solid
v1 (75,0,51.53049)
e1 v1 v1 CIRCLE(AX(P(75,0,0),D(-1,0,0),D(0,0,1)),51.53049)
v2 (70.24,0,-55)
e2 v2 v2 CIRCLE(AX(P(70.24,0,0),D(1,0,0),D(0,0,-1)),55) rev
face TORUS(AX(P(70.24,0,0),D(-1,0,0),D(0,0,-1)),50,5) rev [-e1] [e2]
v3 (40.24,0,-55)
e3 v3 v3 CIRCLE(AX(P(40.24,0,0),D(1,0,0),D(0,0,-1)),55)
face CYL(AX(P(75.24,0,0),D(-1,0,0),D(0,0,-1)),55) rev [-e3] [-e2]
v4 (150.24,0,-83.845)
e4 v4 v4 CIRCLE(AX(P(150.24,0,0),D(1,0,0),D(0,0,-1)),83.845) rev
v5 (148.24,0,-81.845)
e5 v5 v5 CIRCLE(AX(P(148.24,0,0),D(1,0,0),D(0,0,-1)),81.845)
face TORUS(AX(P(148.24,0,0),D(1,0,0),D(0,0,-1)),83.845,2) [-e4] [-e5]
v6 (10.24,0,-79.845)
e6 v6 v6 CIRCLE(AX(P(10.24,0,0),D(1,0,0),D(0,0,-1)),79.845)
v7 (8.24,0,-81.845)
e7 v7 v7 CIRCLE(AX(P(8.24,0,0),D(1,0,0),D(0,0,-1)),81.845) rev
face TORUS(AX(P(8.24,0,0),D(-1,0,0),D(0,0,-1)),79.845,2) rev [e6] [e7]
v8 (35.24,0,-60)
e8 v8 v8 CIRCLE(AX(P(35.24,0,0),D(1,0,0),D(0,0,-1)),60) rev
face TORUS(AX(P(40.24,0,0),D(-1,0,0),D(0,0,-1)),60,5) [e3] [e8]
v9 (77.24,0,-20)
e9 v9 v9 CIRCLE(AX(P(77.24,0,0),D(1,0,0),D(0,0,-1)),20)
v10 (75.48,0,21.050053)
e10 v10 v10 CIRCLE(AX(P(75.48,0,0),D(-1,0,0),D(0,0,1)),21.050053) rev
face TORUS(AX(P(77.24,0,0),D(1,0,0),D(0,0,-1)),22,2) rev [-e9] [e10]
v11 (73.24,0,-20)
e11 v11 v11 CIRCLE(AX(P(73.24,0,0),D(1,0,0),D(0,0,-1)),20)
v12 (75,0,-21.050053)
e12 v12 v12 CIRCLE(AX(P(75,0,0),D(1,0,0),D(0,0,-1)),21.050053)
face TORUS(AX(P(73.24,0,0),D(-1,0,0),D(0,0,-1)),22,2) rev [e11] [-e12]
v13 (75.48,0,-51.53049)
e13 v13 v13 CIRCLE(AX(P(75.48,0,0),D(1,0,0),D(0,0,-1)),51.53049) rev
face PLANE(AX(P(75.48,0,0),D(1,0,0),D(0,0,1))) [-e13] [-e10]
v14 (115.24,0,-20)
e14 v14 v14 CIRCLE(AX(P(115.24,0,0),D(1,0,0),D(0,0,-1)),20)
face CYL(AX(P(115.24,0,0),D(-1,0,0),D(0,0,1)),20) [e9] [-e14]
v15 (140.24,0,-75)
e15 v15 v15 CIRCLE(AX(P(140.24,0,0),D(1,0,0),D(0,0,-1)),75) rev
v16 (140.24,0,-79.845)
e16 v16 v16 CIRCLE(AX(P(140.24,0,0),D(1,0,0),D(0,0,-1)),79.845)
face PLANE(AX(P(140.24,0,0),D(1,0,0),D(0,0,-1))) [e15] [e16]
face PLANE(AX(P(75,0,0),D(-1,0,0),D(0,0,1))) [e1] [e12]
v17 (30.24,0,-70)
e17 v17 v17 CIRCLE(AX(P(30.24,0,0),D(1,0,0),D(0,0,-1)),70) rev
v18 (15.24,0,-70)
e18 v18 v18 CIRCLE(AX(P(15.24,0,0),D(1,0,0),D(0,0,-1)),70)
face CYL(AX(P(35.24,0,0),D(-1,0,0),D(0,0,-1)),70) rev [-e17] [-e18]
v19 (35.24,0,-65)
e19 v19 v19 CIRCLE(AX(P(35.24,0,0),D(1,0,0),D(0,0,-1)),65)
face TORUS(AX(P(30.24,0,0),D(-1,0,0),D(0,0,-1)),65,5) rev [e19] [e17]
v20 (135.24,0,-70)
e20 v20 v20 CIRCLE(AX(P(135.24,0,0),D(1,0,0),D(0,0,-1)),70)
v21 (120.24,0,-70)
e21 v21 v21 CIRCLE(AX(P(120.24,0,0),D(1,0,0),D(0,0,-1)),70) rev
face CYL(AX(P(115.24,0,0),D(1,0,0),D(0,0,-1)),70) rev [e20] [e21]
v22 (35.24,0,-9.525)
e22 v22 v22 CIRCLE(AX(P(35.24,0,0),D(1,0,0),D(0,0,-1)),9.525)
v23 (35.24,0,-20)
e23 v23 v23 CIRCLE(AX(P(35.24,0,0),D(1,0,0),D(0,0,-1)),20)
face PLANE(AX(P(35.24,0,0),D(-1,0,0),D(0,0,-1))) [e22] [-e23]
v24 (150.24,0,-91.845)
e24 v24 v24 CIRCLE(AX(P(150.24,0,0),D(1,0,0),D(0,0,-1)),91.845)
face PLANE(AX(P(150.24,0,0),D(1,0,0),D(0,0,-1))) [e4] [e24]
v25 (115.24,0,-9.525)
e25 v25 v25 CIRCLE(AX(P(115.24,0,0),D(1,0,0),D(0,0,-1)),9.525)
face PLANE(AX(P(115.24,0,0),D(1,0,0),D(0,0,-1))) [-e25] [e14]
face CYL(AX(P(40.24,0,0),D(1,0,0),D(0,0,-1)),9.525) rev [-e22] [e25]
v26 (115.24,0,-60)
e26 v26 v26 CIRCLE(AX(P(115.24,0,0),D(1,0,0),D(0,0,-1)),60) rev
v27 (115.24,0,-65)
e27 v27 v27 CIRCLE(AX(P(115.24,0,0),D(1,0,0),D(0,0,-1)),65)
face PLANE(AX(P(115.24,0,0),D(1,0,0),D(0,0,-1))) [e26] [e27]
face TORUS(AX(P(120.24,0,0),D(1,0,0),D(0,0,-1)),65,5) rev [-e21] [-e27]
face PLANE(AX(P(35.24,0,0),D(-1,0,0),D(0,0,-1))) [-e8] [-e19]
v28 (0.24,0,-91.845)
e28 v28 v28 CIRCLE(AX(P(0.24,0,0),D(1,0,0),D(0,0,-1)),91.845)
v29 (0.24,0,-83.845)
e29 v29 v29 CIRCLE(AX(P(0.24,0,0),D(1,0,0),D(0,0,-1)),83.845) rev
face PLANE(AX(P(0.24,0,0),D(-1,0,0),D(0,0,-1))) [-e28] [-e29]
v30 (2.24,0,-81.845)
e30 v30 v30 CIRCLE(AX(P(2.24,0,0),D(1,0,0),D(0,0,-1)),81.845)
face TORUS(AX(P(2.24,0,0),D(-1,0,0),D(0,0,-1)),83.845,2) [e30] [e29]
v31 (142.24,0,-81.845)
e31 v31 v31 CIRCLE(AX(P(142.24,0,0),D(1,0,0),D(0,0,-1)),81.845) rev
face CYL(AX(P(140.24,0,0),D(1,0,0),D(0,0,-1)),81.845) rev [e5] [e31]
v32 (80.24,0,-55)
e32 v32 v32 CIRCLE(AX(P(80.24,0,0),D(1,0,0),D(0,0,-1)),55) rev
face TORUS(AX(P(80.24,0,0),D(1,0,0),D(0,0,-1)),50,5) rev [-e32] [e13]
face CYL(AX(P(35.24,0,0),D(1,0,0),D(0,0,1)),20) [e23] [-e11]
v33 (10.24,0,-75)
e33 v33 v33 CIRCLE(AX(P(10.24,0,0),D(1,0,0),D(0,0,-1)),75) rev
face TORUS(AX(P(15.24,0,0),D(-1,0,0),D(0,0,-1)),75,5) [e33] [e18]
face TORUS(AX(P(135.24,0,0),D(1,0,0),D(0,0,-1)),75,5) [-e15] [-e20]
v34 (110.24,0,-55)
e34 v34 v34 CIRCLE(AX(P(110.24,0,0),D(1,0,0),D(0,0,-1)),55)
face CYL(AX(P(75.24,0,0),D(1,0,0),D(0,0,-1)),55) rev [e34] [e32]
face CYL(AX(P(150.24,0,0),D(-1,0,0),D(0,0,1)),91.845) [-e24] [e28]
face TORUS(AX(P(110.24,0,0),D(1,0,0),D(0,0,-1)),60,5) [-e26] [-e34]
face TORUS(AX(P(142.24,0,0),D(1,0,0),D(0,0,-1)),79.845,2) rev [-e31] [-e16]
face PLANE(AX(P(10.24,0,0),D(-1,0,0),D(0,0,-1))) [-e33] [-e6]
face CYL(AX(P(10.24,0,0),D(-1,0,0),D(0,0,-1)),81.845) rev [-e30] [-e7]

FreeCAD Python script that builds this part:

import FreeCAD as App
import Part
import Sketcher

V = App.Vector


def edges_at(feature, points):
    """Names of the edges that pass closest to the given points."""
    edges = feature.Shape.Edges
    near = lambda p: min(range(len(edges)), key=lambda i: edges[i].distToShape(Part.Vertex(*p))[0])
    return sorted({f"Edge{near(p) + 1}" for p in points})

doc = App.newDocument("Part")
body = doc.addObject("PartDesign::Body", "Body")

# Sketch on YZ plane
sketch1 = body.newObject("Sketcher::SketchObject", "Sketch")
sketch1.AttachmentSupport = (doc.getObject("YZ_Plane"), [""])
sketch1.MapMode = "FlatFace"
sketch1.addGeometry(Part.Circle(V(0, 0, 0), V(0, 0, 1), 92), False)
sketch1.addConstraint(Sketcher.Constraint("Coincident", 0, 3, -1, 1))
sketch1.addConstraint(Sketcher.Constraint("Diameter", 0, 183.69))
pad1 = body.newObject("PartDesign::Pad", "Pad")
pad1.Profile = sketch1
pad1.Length = 150.24

# Sketch on YZ plane
sketch2 = body.newObject("Sketcher::SketchObject", "Sketch001")
sketch2.AttachmentSupport = (doc.getObject("YZ_Plane"), [""])
sketch2.MapMode = "FlatFace"
sketch2.AttachmentOffset = App.Placement(V(0, 0, 150.24), App.Rotation())
sketch2.addGeometry(Part.Circle(V(0, 0, 0), V(0, 0, 1), 82), False)
sketch2.addConstraint(Sketcher.Constraint("Coincident", 0, 3, -1, 1))
sketch2.addConstraint(Sketcher.Constraint("Diameter", 0, 163.69))
pocket1 = body.newObject("PartDesign::Pocket", "Pocket")
pocket1.Profile = sketch2
pocket1.Length = 10

# Sketch on YZ plane
sketch3 = body.newObject("Sketcher::SketchObject", "Sketch002")
sketch3.AttachmentSupport = (doc.getObject("YZ_Plane"), [""])
sketch3.MapMode = "FlatFace"
sketch3.AttachmentOffset = App.Placement(V(0, 0, 140.24), App.Rotation())
sketch3.addGeometry(Part.Circle(V(0, 0, 0), V(0, 0, 1), 70), False)
sketch3.addConstraint(Sketcher.Constraint("Coincident", 0, 3, -1, 1))
sketch3.addConstraint(Sketcher.Constraint("Diameter", 0, 140.0))
pocket2 = body.newObject("PartDesign::Pocket", "Pocket001")
pocket2.Profile = sketch3
pocket2.Length = 25

# Sketch on YZ plane
sketch4 = body.newObject("Sketcher::SketchObject", "Sketch003")
sketch4.AttachmentSupport = (doc.getObject("YZ_Plane"), [""])
sketch4.MapMode = "FlatFace"
sketch4.AttachmentOffset = App.Placement(V(0, 0, 115.24), App.Rotation())
sketch4.addGeometry(Part.Circle(V(0, 0, 0), V(0, 0, 1), 55), False)
sketch4.addConstraint(Sketcher.Constraint("Coincident", 0, 3, -1, 1))
sketch4.addConstraint(Sketcher.Constraint("Diameter", 0, 110.0))
pocket3 = body.newObject("PartDesign::Pocket", "Pocket002")
pocket3.Profile = sketch4
pocket3.Length = 40

# Sketch on YZ plane
sketch5 = body.newObject("Sketcher::SketchObject", "Sketch004")
sketch5.AttachmentSupport = (doc.getObject("YZ_Plane"), [""])
sketch5.MapMode = "FlatFace"
sketch5.AttachmentOffset = App.Placement(V(0, 0, 75.24), App.Rotation())
sketch5.addGeometry(Part.Circle(V(0, 0, 0), V(0, 0, 1), 20), False)
sketch5.addConstraint(Sketcher.Constraint("Coincident", 0, 3, -1, 1))
sketch5.addConstraint(Sketcher.Constraint("Diameter", 0, 40.0))
pad2 = body.newObject("PartDesign::Pad", "Pad001")
pad2.Profile = sketch5
pad2.Length = 40

# Sketch on YZ plane
sketch6 = body.newObject("Sketcher::SketchObject", "Sketch005")
sketch6.AttachmentSupport = (doc.getObject("YZ_Plane"), [""])
sketch6.MapMode = "FlatFace"
sketch6.addGeometry(Part.Circle(V(0, 0, 0), V(0, 0, 1), 92), False)
sketch6.addConstraint(Sketcher.Constraint("Coincident", 0, 3, -1, 1))
sketch6.addConstraint(Sketcher.Constraint("Diameter", 0, 183.69))
pocket4 = body.newObject("PartDesign::Pocket", "Pocket003")
pocket4.Profile = sketch6
pocket4.Length = 75
pocket4.Reversed = True
doc.recompute()

fillet = body.newObject("PartDesign::Fillet", "Fillet")
fillet.Base = (pocket4, edges_at(pocket4, [(150.24, 0, 81.845)]))
fillet.Radius = 2
doc.recompute()

fillet2 = body.newObject("PartDesign::Fillet", "Fillet001")
fillet2.Base = (fillet, edges_at(fillet, [(140.24, 0, 70)]))
fillet2.Radius = 5
doc.recompute()

fillet3 = body.newObject("PartDesign::Fillet", "Fillet002")
fillet3.Base = (fillet2, edges_at(fillet2, [(115.24, 0, 70)]))
fillet3.Radius = 5
doc.recompute()

fillet4 = body.newObject("PartDesign::Fillet", "Fillet003")
fillet4.Base = (fillet3, edges_at(fillet3, [(140.24, 0, 81.845)]))
fillet4.Radius = 2
doc.recompute()

fillet5 = body.newObject("PartDesign::Fillet", "Fillet004")
fillet5.Base = (fillet4, edges_at(fillet4, [(115.24, 0, 55)]))
fillet5.Radius = 5
doc.recompute()

fillet6 = body.newObject("PartDesign::Fillet", "Fillet005")
fillet6.Base = (fillet5, edges_at(fillet5, [(75.24, 0, 55)]))
fillet6.Radius = 5
doc.recompute()

fillet7 = body.newObject("PartDesign::Fillet", "Fillet006")
fillet7.Base = (fillet6, edges_at(fillet6, [(75.24, 0, 20)]))
fillet7.Radius = 2

# Sketch on YZ plane
sketch7 = body.newObject("Sketcher::SketchObject", "Sketch006")
sketch7.AttachmentSupport = (doc.getObject("YZ_Plane"), [""])
sketch7.MapMode = "FlatFace"
sketch7.AttachmentOffset = App.Placement(V(0, 0, 115.24), App.Rotation())
sketch7.addGeometry(Part.Circle(V(0, 0, 0), V(0, 0, 1), 10), False)
sketch7.addConstraint(Sketcher.Constraint("Coincident", 0, 3, -1, 1))
sketch7.addConstraint(Sketcher.Constraint("Diameter", 0, 19.05))
pocket5 = body.newObject("PartDesign::Pocket", "Pocket004")
pocket5.Profile = sketch7
pocket5.Length = 75
body2 = doc.addObject("PartDesign::Body", "Body001")
doc.recompute()

body2.BaseFeature = body
doc.recompute()

mirroring = doc.addObject("Part::Mirroring", "Mirroring")
mirroring.Source = body
mirroring.Base = V(75.24, 0, 0)
mirroring.Normal = V(1, 0, 0)
body3 = doc.addObject("PartDesign::Body", "Body002")
body3.BaseFeature = mirroring
boolean = body2.newObject("PartDesign::Boolean", "Boolean")
boolean.Type = "Fuse"
boolean.addObjects([body3])
doc.recompute()
mirroring.Visibility = False

doc.recompute()
